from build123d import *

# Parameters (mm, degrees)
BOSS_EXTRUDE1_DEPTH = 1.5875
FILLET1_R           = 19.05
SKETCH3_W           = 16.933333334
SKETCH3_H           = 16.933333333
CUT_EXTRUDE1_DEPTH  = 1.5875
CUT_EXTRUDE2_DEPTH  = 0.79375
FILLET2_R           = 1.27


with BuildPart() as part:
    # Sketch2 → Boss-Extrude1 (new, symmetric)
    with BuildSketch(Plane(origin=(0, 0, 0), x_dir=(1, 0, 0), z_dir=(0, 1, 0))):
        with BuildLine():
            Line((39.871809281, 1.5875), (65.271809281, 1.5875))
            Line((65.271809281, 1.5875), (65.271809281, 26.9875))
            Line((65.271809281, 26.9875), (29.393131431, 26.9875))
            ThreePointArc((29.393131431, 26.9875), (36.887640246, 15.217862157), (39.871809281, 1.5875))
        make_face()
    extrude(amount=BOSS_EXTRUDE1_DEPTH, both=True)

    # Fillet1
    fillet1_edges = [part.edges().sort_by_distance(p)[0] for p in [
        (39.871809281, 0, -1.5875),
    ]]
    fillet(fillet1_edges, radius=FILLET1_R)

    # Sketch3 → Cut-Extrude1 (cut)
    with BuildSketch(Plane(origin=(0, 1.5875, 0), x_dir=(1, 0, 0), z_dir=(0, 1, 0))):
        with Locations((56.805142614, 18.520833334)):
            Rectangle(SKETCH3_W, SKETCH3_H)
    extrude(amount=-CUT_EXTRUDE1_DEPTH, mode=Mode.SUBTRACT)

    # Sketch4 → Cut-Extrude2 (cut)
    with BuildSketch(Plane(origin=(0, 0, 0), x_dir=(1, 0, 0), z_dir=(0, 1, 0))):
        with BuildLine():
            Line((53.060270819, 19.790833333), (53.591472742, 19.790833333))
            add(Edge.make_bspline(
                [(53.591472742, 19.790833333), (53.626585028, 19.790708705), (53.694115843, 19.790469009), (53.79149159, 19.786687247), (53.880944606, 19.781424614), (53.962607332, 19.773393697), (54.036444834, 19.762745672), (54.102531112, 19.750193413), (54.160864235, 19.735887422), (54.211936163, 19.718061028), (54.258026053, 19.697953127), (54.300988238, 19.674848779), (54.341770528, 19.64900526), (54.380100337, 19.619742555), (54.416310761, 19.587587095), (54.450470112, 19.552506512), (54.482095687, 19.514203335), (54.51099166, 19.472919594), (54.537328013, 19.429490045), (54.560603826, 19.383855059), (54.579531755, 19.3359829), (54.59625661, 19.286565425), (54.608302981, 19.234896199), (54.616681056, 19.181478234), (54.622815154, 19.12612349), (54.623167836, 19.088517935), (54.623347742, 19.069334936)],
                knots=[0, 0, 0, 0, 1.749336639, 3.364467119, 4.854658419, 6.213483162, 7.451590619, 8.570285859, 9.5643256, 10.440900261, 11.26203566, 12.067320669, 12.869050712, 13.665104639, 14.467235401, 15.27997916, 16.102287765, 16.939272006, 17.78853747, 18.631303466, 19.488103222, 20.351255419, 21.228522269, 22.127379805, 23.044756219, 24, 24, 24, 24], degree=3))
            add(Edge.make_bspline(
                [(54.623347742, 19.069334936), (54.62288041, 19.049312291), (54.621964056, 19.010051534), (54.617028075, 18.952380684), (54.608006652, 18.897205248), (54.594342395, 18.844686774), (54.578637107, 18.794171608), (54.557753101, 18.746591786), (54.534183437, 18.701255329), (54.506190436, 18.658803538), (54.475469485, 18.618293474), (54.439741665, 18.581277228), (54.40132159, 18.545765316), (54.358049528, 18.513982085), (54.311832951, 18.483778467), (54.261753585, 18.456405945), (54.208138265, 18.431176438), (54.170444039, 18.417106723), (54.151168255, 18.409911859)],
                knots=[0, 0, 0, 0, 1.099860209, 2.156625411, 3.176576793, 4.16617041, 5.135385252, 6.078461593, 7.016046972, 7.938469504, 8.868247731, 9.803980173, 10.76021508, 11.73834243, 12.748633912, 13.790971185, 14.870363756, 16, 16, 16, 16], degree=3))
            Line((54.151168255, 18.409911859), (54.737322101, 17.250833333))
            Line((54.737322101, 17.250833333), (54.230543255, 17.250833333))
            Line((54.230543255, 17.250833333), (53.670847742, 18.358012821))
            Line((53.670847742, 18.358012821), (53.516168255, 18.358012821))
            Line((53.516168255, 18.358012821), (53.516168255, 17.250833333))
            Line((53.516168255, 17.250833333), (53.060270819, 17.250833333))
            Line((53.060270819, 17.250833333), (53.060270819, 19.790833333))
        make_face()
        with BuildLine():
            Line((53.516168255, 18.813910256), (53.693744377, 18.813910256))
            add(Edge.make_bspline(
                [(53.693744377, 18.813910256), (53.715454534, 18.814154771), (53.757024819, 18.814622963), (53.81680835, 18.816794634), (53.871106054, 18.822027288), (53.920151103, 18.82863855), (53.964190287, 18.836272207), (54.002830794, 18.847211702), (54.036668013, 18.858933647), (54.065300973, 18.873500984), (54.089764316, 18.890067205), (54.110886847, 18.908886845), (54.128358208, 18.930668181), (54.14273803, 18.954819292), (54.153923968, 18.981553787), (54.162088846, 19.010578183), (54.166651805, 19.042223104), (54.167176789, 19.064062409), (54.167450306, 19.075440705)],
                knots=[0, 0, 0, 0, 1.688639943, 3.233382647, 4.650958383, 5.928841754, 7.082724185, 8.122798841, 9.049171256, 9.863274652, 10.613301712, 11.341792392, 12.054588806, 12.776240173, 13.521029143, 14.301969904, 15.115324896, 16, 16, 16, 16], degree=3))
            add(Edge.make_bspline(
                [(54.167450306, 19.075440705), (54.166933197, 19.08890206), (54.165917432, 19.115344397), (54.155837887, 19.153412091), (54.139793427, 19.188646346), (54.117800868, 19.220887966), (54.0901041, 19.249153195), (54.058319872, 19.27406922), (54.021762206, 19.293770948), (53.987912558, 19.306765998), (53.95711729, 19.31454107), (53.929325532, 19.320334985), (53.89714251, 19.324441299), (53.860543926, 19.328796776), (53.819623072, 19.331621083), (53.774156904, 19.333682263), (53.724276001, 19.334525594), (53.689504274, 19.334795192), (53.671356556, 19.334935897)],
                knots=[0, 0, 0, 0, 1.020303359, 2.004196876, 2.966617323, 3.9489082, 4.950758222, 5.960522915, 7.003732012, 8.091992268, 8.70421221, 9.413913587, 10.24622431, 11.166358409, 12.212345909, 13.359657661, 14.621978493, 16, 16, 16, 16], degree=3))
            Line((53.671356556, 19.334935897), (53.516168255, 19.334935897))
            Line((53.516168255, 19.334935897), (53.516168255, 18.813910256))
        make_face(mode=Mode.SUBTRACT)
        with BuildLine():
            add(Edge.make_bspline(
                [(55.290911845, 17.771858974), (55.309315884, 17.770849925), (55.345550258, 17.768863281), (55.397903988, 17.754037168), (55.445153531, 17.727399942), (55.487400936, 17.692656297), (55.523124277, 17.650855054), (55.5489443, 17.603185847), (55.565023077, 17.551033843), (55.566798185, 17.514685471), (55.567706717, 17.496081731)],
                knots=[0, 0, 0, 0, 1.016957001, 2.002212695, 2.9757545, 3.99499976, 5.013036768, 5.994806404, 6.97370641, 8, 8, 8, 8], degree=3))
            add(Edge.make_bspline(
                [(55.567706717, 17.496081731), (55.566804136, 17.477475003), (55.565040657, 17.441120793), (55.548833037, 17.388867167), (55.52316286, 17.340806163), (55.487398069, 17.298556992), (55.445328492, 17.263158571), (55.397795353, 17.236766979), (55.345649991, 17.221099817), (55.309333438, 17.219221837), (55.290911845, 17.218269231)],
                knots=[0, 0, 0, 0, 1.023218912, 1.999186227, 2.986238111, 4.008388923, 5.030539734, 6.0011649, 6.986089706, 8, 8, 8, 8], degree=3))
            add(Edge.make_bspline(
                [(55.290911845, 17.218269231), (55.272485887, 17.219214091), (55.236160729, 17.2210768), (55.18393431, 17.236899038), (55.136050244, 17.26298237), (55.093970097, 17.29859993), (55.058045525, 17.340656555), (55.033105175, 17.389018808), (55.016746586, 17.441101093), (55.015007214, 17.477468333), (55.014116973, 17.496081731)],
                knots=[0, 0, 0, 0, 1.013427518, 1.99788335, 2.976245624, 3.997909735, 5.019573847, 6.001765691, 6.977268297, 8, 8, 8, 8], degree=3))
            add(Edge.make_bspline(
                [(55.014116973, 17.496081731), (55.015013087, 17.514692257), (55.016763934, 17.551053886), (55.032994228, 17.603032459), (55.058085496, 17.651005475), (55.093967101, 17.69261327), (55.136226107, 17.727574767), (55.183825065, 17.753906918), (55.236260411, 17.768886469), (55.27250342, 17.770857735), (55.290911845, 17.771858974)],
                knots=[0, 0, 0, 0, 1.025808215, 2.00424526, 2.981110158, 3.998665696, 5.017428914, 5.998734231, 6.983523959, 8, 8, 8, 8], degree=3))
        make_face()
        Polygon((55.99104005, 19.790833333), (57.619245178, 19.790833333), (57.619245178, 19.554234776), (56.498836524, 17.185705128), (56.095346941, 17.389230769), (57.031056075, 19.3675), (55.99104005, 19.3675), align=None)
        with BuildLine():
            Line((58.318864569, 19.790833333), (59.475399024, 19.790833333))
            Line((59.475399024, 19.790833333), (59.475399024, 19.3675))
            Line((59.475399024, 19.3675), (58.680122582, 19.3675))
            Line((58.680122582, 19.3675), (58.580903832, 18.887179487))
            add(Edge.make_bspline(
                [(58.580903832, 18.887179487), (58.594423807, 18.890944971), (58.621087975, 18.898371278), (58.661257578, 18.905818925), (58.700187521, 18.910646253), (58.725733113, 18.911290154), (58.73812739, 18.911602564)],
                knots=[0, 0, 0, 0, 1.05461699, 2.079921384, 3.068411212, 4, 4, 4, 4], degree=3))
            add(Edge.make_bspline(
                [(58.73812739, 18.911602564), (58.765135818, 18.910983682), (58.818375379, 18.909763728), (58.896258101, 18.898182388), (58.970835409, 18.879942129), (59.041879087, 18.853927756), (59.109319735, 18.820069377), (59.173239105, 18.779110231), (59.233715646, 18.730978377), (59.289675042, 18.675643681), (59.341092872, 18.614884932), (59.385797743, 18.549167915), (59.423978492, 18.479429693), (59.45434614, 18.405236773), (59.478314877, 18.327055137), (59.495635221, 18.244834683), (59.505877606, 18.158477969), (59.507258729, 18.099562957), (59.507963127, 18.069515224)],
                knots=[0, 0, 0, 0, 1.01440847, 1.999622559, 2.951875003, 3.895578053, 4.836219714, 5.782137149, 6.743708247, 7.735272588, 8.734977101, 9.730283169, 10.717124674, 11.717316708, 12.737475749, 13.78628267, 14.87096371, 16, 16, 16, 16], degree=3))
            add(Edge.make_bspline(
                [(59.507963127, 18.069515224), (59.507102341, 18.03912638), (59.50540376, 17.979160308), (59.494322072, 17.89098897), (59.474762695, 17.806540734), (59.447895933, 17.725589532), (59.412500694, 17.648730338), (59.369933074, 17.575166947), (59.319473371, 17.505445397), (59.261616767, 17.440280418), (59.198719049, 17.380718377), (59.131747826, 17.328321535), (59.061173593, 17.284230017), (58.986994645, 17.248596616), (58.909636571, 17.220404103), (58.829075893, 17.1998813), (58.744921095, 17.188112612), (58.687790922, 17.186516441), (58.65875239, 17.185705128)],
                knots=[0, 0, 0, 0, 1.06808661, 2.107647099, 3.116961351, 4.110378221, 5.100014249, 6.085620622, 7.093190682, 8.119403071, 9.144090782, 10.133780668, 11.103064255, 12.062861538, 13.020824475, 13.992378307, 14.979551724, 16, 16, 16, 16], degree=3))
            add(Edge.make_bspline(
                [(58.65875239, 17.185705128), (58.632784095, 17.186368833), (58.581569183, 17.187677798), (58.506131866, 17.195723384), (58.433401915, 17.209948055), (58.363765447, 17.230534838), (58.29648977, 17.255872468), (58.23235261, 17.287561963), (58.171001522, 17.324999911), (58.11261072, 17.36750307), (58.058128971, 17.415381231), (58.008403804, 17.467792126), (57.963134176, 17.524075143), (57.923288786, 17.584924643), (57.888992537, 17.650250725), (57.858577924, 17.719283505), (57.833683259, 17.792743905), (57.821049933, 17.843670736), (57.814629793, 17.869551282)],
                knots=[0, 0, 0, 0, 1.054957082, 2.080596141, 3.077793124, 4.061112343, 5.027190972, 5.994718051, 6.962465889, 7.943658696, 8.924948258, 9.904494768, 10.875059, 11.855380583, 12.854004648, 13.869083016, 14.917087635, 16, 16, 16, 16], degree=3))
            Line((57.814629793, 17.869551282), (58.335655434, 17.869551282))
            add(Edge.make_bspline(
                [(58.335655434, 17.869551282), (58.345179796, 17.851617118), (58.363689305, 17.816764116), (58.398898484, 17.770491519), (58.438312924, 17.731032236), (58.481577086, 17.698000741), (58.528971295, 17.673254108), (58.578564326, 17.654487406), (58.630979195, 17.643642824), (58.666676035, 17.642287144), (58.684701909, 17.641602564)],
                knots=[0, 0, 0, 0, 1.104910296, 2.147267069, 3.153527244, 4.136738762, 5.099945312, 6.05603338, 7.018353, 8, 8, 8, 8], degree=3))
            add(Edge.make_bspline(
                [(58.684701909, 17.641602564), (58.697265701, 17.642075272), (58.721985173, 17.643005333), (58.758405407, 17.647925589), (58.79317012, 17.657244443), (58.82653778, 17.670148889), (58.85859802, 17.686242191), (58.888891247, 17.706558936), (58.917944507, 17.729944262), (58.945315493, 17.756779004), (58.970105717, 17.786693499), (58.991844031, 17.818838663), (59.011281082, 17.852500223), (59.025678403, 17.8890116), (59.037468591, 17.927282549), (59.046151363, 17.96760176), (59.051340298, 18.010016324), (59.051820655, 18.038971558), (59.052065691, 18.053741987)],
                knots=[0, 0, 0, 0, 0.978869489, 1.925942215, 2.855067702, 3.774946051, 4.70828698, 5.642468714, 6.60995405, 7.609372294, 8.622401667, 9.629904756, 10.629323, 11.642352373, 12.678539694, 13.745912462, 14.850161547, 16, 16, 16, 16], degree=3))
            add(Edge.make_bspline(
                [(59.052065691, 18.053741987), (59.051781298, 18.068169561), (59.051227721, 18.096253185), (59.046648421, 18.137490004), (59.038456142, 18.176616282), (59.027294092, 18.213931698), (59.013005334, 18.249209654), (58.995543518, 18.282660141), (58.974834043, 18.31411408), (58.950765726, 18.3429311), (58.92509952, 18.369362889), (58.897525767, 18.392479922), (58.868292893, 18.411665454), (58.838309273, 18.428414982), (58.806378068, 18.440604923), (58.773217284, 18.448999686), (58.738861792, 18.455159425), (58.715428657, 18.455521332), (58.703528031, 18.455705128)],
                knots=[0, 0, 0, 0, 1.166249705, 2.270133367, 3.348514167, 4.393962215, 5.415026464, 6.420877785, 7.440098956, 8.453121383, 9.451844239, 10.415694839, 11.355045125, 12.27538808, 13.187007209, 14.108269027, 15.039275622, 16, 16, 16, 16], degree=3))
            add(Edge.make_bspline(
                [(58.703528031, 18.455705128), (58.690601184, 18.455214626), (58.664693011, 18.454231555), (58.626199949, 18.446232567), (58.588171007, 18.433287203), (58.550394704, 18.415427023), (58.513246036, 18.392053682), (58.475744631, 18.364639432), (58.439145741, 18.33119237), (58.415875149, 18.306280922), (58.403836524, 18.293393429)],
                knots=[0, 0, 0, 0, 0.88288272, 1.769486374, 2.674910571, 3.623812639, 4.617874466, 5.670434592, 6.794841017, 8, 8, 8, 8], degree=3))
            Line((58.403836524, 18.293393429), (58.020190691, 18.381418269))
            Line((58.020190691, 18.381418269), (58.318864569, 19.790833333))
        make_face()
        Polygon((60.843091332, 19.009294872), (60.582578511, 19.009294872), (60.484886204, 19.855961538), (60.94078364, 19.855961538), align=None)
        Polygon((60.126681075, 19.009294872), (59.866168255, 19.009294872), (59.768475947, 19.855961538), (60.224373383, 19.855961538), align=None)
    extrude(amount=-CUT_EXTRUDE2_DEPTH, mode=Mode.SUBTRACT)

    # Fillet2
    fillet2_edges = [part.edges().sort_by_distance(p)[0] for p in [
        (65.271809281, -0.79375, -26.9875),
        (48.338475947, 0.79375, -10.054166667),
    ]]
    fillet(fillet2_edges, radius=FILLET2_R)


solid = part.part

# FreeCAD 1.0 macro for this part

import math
import FreeCAD as App
import Part
import Sketcher
Q = App.Units.Quantity


def edges_at(feature, points):
    """Names of the edges that pass closest to the given points."""
    edges = feature.Shape.Edges
    near = lambda p: min(range(len(edges)), key=lambda i: edges[i].distToShape(Part.Vertex(*p))[0])
    return sorted({f"Edge{near(p) + 1}" for p in points})


def add_polygon(sketch, points):
    """Adds a closed chain of lines whose ends are joined by coincident constraints."""
    first, n = sketch.GeometryCount, len(points)
    for a, b in zip(points, points[1:] + points[:1]):
        sketch.addGeometry(Part.LineSegment(App.Vector(*a, 0), App.Vector(*b, 0)), False)
    for i in range(n):
        sketch.addConstraint(Sketcher.Constraint("Coincident", first + i, 2, first + (i + 1) % n, 1))

doc = App.newDocument("Part")
body = doc.addObject("PartDesign::Body", "Body")

# Sketch on XZ plane
sketch1 = doc.addObject("Sketcher::SketchObject", "Sketch")
body.addObject(sketch1)
sketch1.AttachmentSupport = (doc.XZ_Plane, [""])
sketch1.MapMode = "FlatFace"
sketch1.addGeometry(Part.LineSegment(App.Vector(40, -2, 0), App.Vector(65, -2, 0)), False)
sketch1.addGeometry(Part.LineSegment(App.Vector(65, -2, 0), App.Vector(65, -27, 0)), False)
sketch1.addGeometry(Part.LineSegment(App.Vector(65, -27, 0), App.Vector(29, -27, 0)), False)
sketch1.addGeometry(Part.ArcOfCircle(Part.Circle(App.Vector(0, 0, 0), App.Vector(0, 0, 1), 40), math.radians(-43), math.radians(-2)), False)
sketch1.addConstraint(Sketcher.Constraint("Coincident", 0, 2, 1, 1))
sketch1.addConstraint(Sketcher.Constraint("Coincident", 1, 2, 2, 1))
sketch1.addConstraint(Sketcher.Constraint("Coincident", 2, 2, 3, 1))
sketch1.addConstraint(Sketcher.Constraint("Coincident", 3, 2, 0, 1))
sketch1.addConstraint(Sketcher.Constraint("Horizontal", 0))
sketch1.addConstraint(Sketcher.Constraint("Vertical", 1))
sketch1.addConstraint(Sketcher.Constraint("Horizontal", 2))
sketch1.addConstraint(Sketcher.Constraint("Coincident", 3, 3, -1, 1))
sketch1.addConstraint(Sketcher.Constraint("Equal", 0, 1))
sketch1.addConstraint(Sketcher.Constraint("DistanceX", 0, 1, 0, 2, Q("1 in")))
sketch1.addConstraint(Sketcher.Constraint("Radius", 3, Q("1.571 in")))
sketch1.addConstraint(Sketcher.Constraint("DistanceY", 0, 2, -1, 1, Q("0.0625 in")))
pad1 = doc.addObject("PartDesign::Pad", "Pad")
body.addObject(pad1)
pad1.Profile = sketch1
pad1.Length = Q("0.125 in")
pad1.Midplane = True
doc.recompute()

fillet = doc.addObject("PartDesign::Fillet", "Fillet")
body.addObject(fillet)
fillet.Base = (pad1, edges_at(pad1, [(39.872, 0, -1.587)]))
fillet.Radius = Q("0.75 in")

# Sketch on XZ plane
sketch2 = doc.addObject("Sketcher::SketchObject", "Sketch001")
body.addObject(sketch2)
sketch2.AttachmentSupport = (doc.XZ_Plane, [""])
sketch2.MapMode = "FlatFace"
sketch2.AttachmentOffset = App.Placement(App.Vector(0, 0, -0.0625 * 25.4), App.Rotation())
add_polygon(sketch2, [(48, -27), (48, -10), (65, -10), (65, -27)])  # lines 0-3
sketch2.addConstraint(Sketcher.Constraint("Vertical", 0))
sketch2.addConstraint(Sketcher.Constraint("Horizontal", 1))
sketch2.addConstraint(Sketcher.Constraint("Vertical", 2))
sketch2.addConstraint(Sketcher.Constraint("Horizontal", 3))
sketch2.addConstraint(Sketcher.Constraint("Equal", 3, 0))
sketch2.addConstraint(Sketcher.Constraint("DistanceY", 2, 2, -1, 1, Q("1.0625 in")))
sketch2.addConstraint(Sketcher.Constraint("DistanceX", 1, 1, 1, 2, 16.933333))
sketch2.addConstraint(Sketcher.Constraint("DistanceX", -1, 1, 1, 2, 65.271809))
pocket1 = doc.addObject("PartDesign::Pocket", "Pocket")
body.addObject(pocket1)
pocket1.Profile = sketch2
pocket1.Length = Q("0.0625 in")
pocket1.Reversed = True

# Sketch on XZ plane
sketch3 = doc.addObject("Sketcher::SketchObject", "Sketch002")
body.addObject(sketch3)
sketch3.AttachmentSupport = (doc.XZ_Plane, [""])
sketch3.MapMode = "FlatFace"
sketch3.addGeometry(Part.LineSegment(App.Vector(53.591473, -19.790833, 0), App.Vector(53.060271, -19.790833, 0)), False)  # 0
sketch3.addGeometry(Part.LineSegment(App.Vector(53.060271, -19.790833, 0), App.Vector(53.060271, -17.250833, 0)), False)  # 1
sketch3.addGeometry(Part.LineSegment(App.Vector(53.060271, -17.250833, 0), App.Vector(53.516168, -17.250833, 0)), False)  # 2
sketch3.addGeometry(Part.LineSegment(App.Vector(53.516168, -17.250833, 0), App.Vector(53.516168, -18.358013, 0)), False)  # 3
sketch3.addGeometry(Part.LineSegment(App.Vector(53.516168, -18.358013, 0), App.Vector(53.670848, -18.358013, 0)), False)  # 4
sketch3.addGeometry(Part.LineSegment(App.Vector(53.670848, -18.358013, 0), App.Vector(54.230543, -17.250833, 0)), False)  # 5
sketch3.addGeometry(Part.LineSegment(App.Vector(54.230543, -17.250833, 0), App.Vector(54.737322, -17.250833, 0)), False)  # 6
sketch3.addGeometry(Part.LineSegment(App.Vector(54.737322, -17.250833, 0), App.Vector(54.151168, -18.409912, 0)), False)  # 7
sketch3.addGeometry(Part.BSplineCurve([App.Vector(54.623348, -19.069335, 0), App.Vector(54.62288, -19.049312, 0), App.Vector(54.621964, -19.010052, 0), App.Vector(54.617028, -18.952381, 0), App.Vector(54.608007, -18.897205, 0), App.Vector(54.594342, -18.844687, 0), App.Vector(54.578637, -18.794172, 0), App.Vector(54.557753, -18.746592, 0), App.Vector(54.534183, -18.701255, 0), App.Vector(54.50619, -18.658804, 0), App.Vector(54.475469, -18.618293, 0), App.Vector(54.439742, -18.581277, 0), App.Vector(54.401322, -18.545765, 0), App.Vector(54.35805, -18.513982, 0), App.Vector(54.311833, -18.483778, 0), App.Vector(54.261754, -18.456406, 0), App.Vector(54.208138, -18.431176, 0), App.Vector(54.170444, -18.417107, 0), App.Vector(54.151168, -18.409912, 0)], [4, 1, 1, 1, 1, 1, 1, 1, 1, 1, 1, 1, 1, 1, 1, 1, 4], [0, 1.099860209, 2.156625411, 3.176576793, 4.16617041, 5.135385252, 6.078461593, 7.016046972, 7.938469504, 8.868247731, 9.803980173, 10.76021508, 11.73834243, 12.748633912, 13.790971185, 14.870363756, 16], False, 3, [1, 1, 1, 1, 1, 1, 1, 1, 1, 1, 1, 1, 1, 1, 1, 1, 1, 1, 1], False), False)  # 8
sketch3.addGeometry(Part.BSplineCurve([App.Vector(53.591473, -19.790833, 0), App.Vector(53.626585, -19.790709, 0), App.Vector(53.694116, -19.790469, 0), App.Vector(53.791492, -19.786687, 0), App.Vector(53.880945, -19.781425, 0), App.Vector(53.962607, -19.773394, 0), App.Vector(54.036445, -19.762746, 0), App.Vector(54.102531, -19.750193, 0), App.Vector(54.160864, -19.735887, 0), App.Vector(54.211936, -19.718061, 0), App.Vector(54.258026, -19.697953, 0), App.Vector(54.300988, -19.674849, 0), App.Vector(54.341771, -19.649005, 0), App.Vector(54.3801, -19.619743, 0), App.Vector(54.416311, -19.587587, 0), App.Vector(54.45047, -19.552507, 0), App.Vector(54.482096, -19.514203, 0), App.Vector(54.510992, -19.47292, 0), App.Vector(54.537328, -19.42949, 0), App.Vector(54.560604, -19.383855, 0), App.Vector(54.579532, -19.335983, 0), App.Vector(54.596257, -19.286565, 0), App.Vector(54.608303, -19.234896, 0), App.Vector(54.616681, -19.181478, 0), App.Vector(54.622815, -19.126123, 0), App.Vector(54.623168, -19.088518, 0), App.Vector(54.623348, -19.069335, 0)], [4, 1, 1, 1, 1, 1, 1, 1, 1, 1, 1, 1, 1, 1, 1, 1, 1, 1, 1, 1, 1, 1, 1, 1, 4], [0, 1.749336639, 3.364467119, 4.854658419, 6.213483162, 7.451590619, 8.570285859, 9.5643256, 10.440900261, 11.26203566, 12.067320669, 12.869050712, 13.665104639, 14.467235401, 15.27997916, 16.102287765, 16.939272006, 17.78853747, 18.631303466, 19.488103222, 20.351255419, 21.228522269, 22.127379805, 23.044756219, 24], False, 3, [1, 1, 1, 1, 1, 1, 1, 1, 1, 1, 1, 1, 1, 1, 1, 1, 1, 1, 1, 1, 1, 1, 1, 1, 1, 1, 1], False), False)  # 9
sketch3.addGeometry(Part.LineSegment(App.Vector(53.516168, -18.81391, 0), App.Vector(53.516168, -19.334936, 0)), False)  # 10
sketch3.addGeometry(Part.LineSegment(App.Vector(53.516168, -19.334936, 0), App.Vector(53.671357, -19.334936, 0)), False)  # 11
sketch3.addGeometry(Part.BSplineCurve([App.Vector(54.16745, -19.075441, 0), App.Vector(54.166933, -19.088902, 0), App.Vector(54.165917, -19.115344, 0), App.Vector(54.155838, -19.153412, 0), App.Vector(54.139793, -19.188646, 0), App.Vector(54.117801, -19.220888, 0), App.Vector(54.090104, -19.249153, 0), App.Vector(54.05832, -19.274069, 0), App.Vector(54.021762, -19.293771, 0), App.Vector(53.987913, -19.306766, 0), App.Vector(53.957117, -19.314541, 0), App.Vector(53.929326, -19.320335, 0), App.Vector(53.897143, -19.324441, 0), App.Vector(53.860544, -19.328797, 0), App.Vector(53.819623, -19.331621, 0), App.Vector(53.774157, -19.333682, 0), App.Vector(53.724276, -19.334526, 0), App.Vector(53.689504, -19.334795, 0), App.Vector(53.671357, -19.334936, 0)], [4, 1, 1, 1, 1, 1, 1, 1, 1, 1, 1, 1, 1, 1, 1, 1, 4], [0, 1.020303359, 2.004196876, 2.966617323, 3.9489082, 4.950758222, 5.960522915, 7.003732012, 8.091992268, 8.70421221, 9.413913587, 10.24622431, 11.166358409, 12.212345909, 13.359657661, 14.621978493, 16], False, 3, [1, 1, 1, 1, 1, 1, 1, 1, 1, 1, 1, 1, 1, 1, 1, 1, 1, 1, 1], False), False)  # 12
sketch3.addGeometry(Part.BSplineCurve([App.Vector(53.693744, -18.81391, 0), App.Vector(53.715455, -18.814155, 0), App.Vector(53.757025, -18.814623, 0), App.Vector(53.816808, -18.816795, 0), App.Vector(53.871106, -18.822027, 0), App.Vector(53.920151, -18.828639, 0), App.Vector(53.96419, -18.836272, 0), App.Vector(54.002831, -18.847212, 0), App.Vector(54.036668, -18.858934, 0), App.Vector(54.065301, -18.873501, 0), App.Vector(54.089764, -18.890067, 0), App.Vector(54.110887, -18.908887, 0), App.Vector(54.128358, -18.930668, 0), App.Vector(54.142738, -18.954819, 0), App.Vector(54.153924, -18.981554, 0), App.Vector(54.162089, -19.010578, 0), App.Vector(54.166652, -19.042223, 0), App.Vector(54.167177, -19.064062, 0), App.Vector(54.16745, -19.075441, 0)], [4, 1, 1, 1, 1, 1, 1, 1, 1, 1, 1, 1, 1, 1, 1, 1, 4], [0, 1.688639943, 3.233382647, 4.650958383, 5.928841754, 7.082724185, 8.122798841, 9.049171256, 9.863274652, 10.613301712, 11.341792392, 12.054588806, 12.776240173, 13.521029143, 14.301969904, 15.115324896, 16], False, 3, [1, 1, 1, 1, 1, 1, 1, 1, 1, 1, 1, 1, 1, 1, 1, 1, 1, 1, 1], False), False)  # 13
sketch3.addGeometry(Part.LineSegment(App.Vector(53.693744, -18.81391, 0), App.Vector(53.516168, -18.81391, 0)), False)  # 14
sketch3.addGeometry(Part.BSplineCurve([App.Vector(55.290912, -17.771859, 0), App.Vector(55.309316, -17.77085, 0), App.Vector(55.34555, -17.768863, 0), App.Vector(55.397904, -17.754037, 0), App.Vector(55.445154, -17.7274, 0), App.Vector(55.487401, -17.692656, 0), App.Vector(55.523124, -17.650855, 0), App.Vector(55.548944, -17.603186, 0), App.Vector(55.565023, -17.551034, 0), App.Vector(55.566798, -17.514685, 0), App.Vector(55.567707, -17.496082, 0)], [4, 1, 1, 1, 1, 1, 1, 1, 4], [0, 1.016957001, 2.002212695, 2.9757545, 3.99499976, 5.013036768, 5.994806404, 6.97370641, 8], False, 3, [1, 1, 1, 1, 1, 1, 1, 1, 1, 1, 1], False), False)  # 15
sketch3.addGeometry(Part.BSplineCurve([App.Vector(55.014117, -17.496082, 0), App.Vector(55.015013, -17.514692, 0), App.Vector(55.016764, -17.551054, 0), App.Vector(55.032994, -17.603032, 0), App.Vector(55.058085, -17.651005, 0), App.Vector(55.093967, -17.692613, 0), App.Vector(55.136226, -17.727575, 0), App.Vector(55.183825, -17.753907, 0), App.Vector(55.23626, -17.768886, 0), App.Vector(55.272503, -17.770858, 0), App.Vector(55.290912, -17.771859, 0)], [4, 1, 1, 1, 1, 1, 1, 1, 4], [0, 1.025808215, 2.00424526, 2.981110158, 3.998665696, 5.017428914, 5.998734231, 6.983523959, 8], False, 3, [1, 1, 1, 1, 1, 1, 1, 1, 1, 1, 1], False), False)  # 16
sketch3.addGeometry(Part.BSplineCurve([App.Vector(55.290912, -17.218269, 0), App.Vector(55.272486, -17.219214, 0), App.Vector(55.236161, -17.221077, 0), App.Vector(55.183934, -17.236899, 0), App.Vector(55.13605, -17.262982, 0), App.Vector(55.09397, -17.2986, 0), App.Vector(55.058046, -17.340657, 0), App.Vector(55.033105, -17.389019, 0), App.Vector(55.016747, -17.441101, 0), App.Vector(55.015007, -17.477468, 0), App.Vector(55.014117, -17.496082, 0)], [4, 1, 1, 1, 1, 1, 1, 1, 4], [0, 1.013427518, 1.99788335, 2.976245624, 3.997909735, 5.019573847, 6.001765691, 6.977268297, 8], False, 3, [1, 1, 1, 1, 1, 1, 1, 1, 1, 1, 1], False), False)  # 17
sketch3.addGeometry(Part.BSplineCurve([App.Vector(55.567707, -17.496082, 0), App.Vector(55.566804, -17.477475, 0), App.Vector(55.565041, -17.441121, 0), App.Vector(55.548833, -17.388867, 0), App.Vector(55.523163, -17.340806, 0), App.Vector(55.487398, -17.298557, 0), App.Vector(55.445328, -17.263159, 0), App.Vector(55.397795, -17.236767, 0), App.Vector(55.34565, -17.2211, 0), App.Vector(55.309333, -17.219222, 0), App.Vector(55.290912, -17.218269, 0)], [4, 1, 1, 1, 1, 1, 1, 1, 4], [0, 1.023218912, 1.999186227, 2.986238111, 4.008388923, 5.030539734, 6.0011649, 6.986089706, 8], False, 3, [1, 1, 1, 1, 1, 1, 1, 1, 1, 1, 1], False), False)  # 18
add_polygon(sketch3, [(57.619245, -19.790833), (55.99104, -19.790833), (55.99104, -19.3675), (57.031056, -19.3675), (56.095347, -17.389231), (56.498837, -17.185705), (57.619245, -19.554235)])  # lines 19-25
sketch3.addGeometry(Part.LineSegment(App.Vector(59.475399, -19.790833, 0), App.Vector(58.318865, -19.790833, 0)), False)  # 26
sketch3.addGeometry(Part.LineSegment(App.Vector(58.318865, -19.790833, 0), App.Vector(58.020191, -18.381418, 0)), False)  # 27
sketch3.addGeometry(Part.LineSegment(App.Vector(58.020191, -18.381418, 0), App.Vector(58.403837, -18.293393, 0)), False)  # 28
sketch3.addGeometry(Part.BSplineCurve([App.Vector(58.703528, -18.455705, 0), App.Vector(58.690601, -18.455215, 0), App.Vector(58.664693, -18.454232, 0), App.Vector(58.6262, -18.446233, 0), App.Vector(58.588171, -18.433287, 0), App.Vector(58.550395, -18.415427, 0), App.Vector(58.513246, -18.392054, 0), App.Vector(58.475745, -18.364639, 0), App.Vector(58.439146, -18.331192, 0), App.Vector(58.415875, -18.306281, 0), App.Vector(58.403837, -18.293393, 0)], [4, 1, 1, 1, 1, 1, 1, 1, 4], [0, 0.88288272, 1.769486374, 2.674910571, 3.623812639, 4.617874466, 5.670434592, 6.794841017, 8], False, 3, [1, 1, 1, 1, 1, 1, 1, 1, 1, 1, 1], False), False)  # 29
sketch3.addGeometry(Part.BSplineCurve([App.Vector(59.052066, -18.053742, 0), App.Vector(59.051781, -18.06817, 0), App.Vector(59.051228, -18.096253, 0), App.Vector(59.046648, -18.13749, 0), App.Vector(59.038456, -18.176616, 0), App.Vector(59.027294, -18.213932, 0), App.Vector(59.013005, -18.24921, 0), App.Vector(58.995544, -18.28266, 0), App.Vector(58.974834, -18.314114, 0), App.Vector(58.950766, -18.342931, 0), App.Vector(58.9251, -18.369363, 0), App.Vector(58.897526, -18.39248, 0), App.Vector(58.868293, -18.411665, 0), App.Vector(58.838309, -18.428415, 0), App.Vector(58.806378, -18.440605, 0), App.Vector(58.773217, -18.449, 0), App.Vector(58.738862, -18.455159, 0), App.Vector(58.715429, -18.455521, 0), App.Vector(58.703528, -18.455705, 0)], [4, 1, 1, 1, 1, 1, 1, 1, 1, 1, 1, 1, 1, 1, 1, 1, 4], [0, 1.166249705, 2.270133367, 3.348514167, 4.393962215, 5.415026464, 6.420877785, 7.440098956, 8.453121383, 9.451844239, 10.415694839, 11.355045125, 12.27538808, 13.187007209, 14.108269027, 15.039275622, 16], False, 3, [1, 1, 1, 1, 1, 1, 1, 1, 1, 1, 1, 1, 1, 1, 1, 1, 1, 1, 1], False), False)  # 30
sketch3.addGeometry(Part.BSplineCurve([App.Vector(58.684702, -17.641603, 0), App.Vector(58.697266, -17.642075, 0), App.Vector(58.721985, -17.643005, 0), App.Vector(58.758405, -17.647926, 0), App.Vector(58.79317, -17.657244, 0), App.Vector(58.826538, -17.670149, 0), App.Vector(58.858598, -17.686242, 0), App.Vector(58.888891, -17.706559, 0), App.Vector(58.917945, -17.729944, 0), App.Vector(58.945315, -17.756779, 0), App.Vector(58.970106, -17.786693, 0), App.Vector(58.991844, -17.818839, 0), App.Vector(59.011281, -17.8525, 0), App.Vector(59.025678, -17.889012, 0), App.Vector(59.037469, -17.927283, 0), App.Vector(59.046151, -17.967602, 0), App.Vector(59.05134, -18.010016, 0), App.Vector(59.051821, -18.038972, 0), App.Vector(59.052066, -18.053742, 0)], [4, 1, 1, 1, 1, 1, 1, 1, 1, 1, 1, 1, 1, 1, 1, 1, 4], [0, 0.978869489, 1.925942215, 2.855067702, 3.774946051, 4.70828698, 5.642468714, 6.60995405, 7.609372294, 8.622401667, 9.629904756, 10.629323, 11.642352373, 12.678539694, 13.745912462, 14.850161547, 16], False, 3, [1, 1, 1, 1, 1, 1, 1, 1, 1, 1, 1, 1, 1, 1, 1, 1, 1, 1, 1], False), False)  # 31
sketch3.addGeometry(Part.BSplineCurve([App.Vector(58.335655, -17.869551, 0), App.Vector(58.34518, -17.851617, 0), App.Vector(58.363689, -17.816764, 0), App.Vector(58.398898, -17.770492, 0), App.Vector(58.438313, -17.731032, 0), App.Vector(58.481577, -17.698001, 0), App.Vector(58.528971, -17.673254, 0), App.Vector(58.578564, -17.654487, 0), App.Vector(58.630979, -17.643643, 0), App.Vector(58.666676, -17.642287, 0), App.Vector(58.684702, -17.641603, 0)], [4, 1, 1, 1, 1, 1, 1, 1, 4], [0, 1.104910296, 2.147267069, 3.153527244, 4.136738762, 5.099945312, 6.05603338, 7.018353, 8], False, 3, [1, 1, 1, 1, 1, 1, 1, 1, 1, 1, 1], False), False)  # 32
sketch3.addGeometry(Part.LineSegment(App.Vector(58.335655, -17.869551, 0), App.Vector(57.81463, -17.869551, 0)), False)  # 33
sketch3.addGeometry(Part.BSplineCurve([App.Vector(58.658752, -17.185705, 0), App.Vector(58.632784, -17.186369, 0), App.Vector(58.581569, -17.187678, 0), App.Vector(58.506132, -17.195723, 0), App.Vector(58.433402, -17.209948, 0), App.Vector(58.363765, -17.230535, 0), App.Vector(58.29649, -17.255872, 0), App.Vector(58.232353, -17.287562, 0), App.Vector(58.171002, -17.325, 0), App.Vector(58.112611, -17.367503, 0), App.Vector(58.058129, -17.415381, 0), App.Vector(58.008404, -17.467792, 0), App.Vector(57.963134, -17.524075, 0), App.Vector(57.923289, -17.584925, 0), App.Vector(57.888993, -17.650251, 0), App.Vector(57.858578, -17.719284, 0), App.Vector(57.833683, -17.792744, 0), App.Vector(57.82105, -17.843671, 0), App.Vector(57.81463, -17.869551, 0)], [4, 1, 1, 1, 1, 1, 1, 1, 1, 1, 1, 1, 1, 1, 1, 1, 4], [0, 1.054957082, 2.080596141, 3.077793124, 4.061112343, 5.027190972, 5.994718051, 6.962465889, 7.943658696, 8.924948258, 9.904494768, 10.875059, 11.855380583, 12.854004648, 13.869083016, 14.917087635, 16], False, 3, [1, 1, 1, 1, 1, 1, 1, 1, 1, 1, 1, 1, 1, 1, 1, 1, 1, 1, 1], False), False)  # 34
sketch3.addGeometry(Part.BSplineCurve([App.Vector(59.507963, -18.069515, 0), App.Vector(59.507102, -18.039126, 0), App.Vector(59.505404, -17.97916, 0), App.Vector(59.494322, -17.890989, 0), App.Vector(59.474763, -17.806541, 0), App.Vector(59.447896, -17.72559, 0), App.Vector(59.412501, -17.64873, 0), App.Vector(59.369933, -17.575167, 0), App.Vector(59.319473, -17.505445, 0), App.Vector(59.261617, -17.44028, 0), App.Vector(59.198719, -17.380718, 0), App.Vector(59.131748, -17.328322, 0), App.Vector(59.061174, -17.28423, 0), App.Vector(58.986995, -17.248597, 0), App.Vector(58.909637, -17.220404, 0), App.Vector(58.829076, -17.199881, 0), App.Vector(58.744921, -17.188113, 0), App.Vector(58.687791, -17.186516, 0), App.Vector(58.658752, -17.185705, 0)], [4, 1, 1, 1, 1, 1, 1, 1, 1, 1, 1, 1, 1, 1, 1, 1, 4], [0, 1.06808661, 2.107647099, 3.116961351, 4.110378221, 5.100014249, 6.085620622, 7.093190682, 8.119403071, 9.144090782, 10.133780668, 11.103064255, 12.062861538, 13.020824475, 13.992378307, 14.979551724, 16], False, 3, [1, 1, 1, 1, 1, 1, 1, 1, 1, 1, 1, 1, 1, 1, 1, 1, 1, 1, 1], False), False)  # 35
sketch3.addGeometry(Part.BSplineCurve([App.Vector(58.738127, -18.911603, 0), App.Vector(58.765136, -18.910984, 0), App.Vector(58.818375, -18.909764, 0), App.Vector(58.896258, -18.898182, 0), App.Vector(58.970835, -18.879942, 0), App.Vector(59.041879, -18.853928, 0), App.Vector(59.10932, -18.820069, 0), App.Vector(59.173239, -18.77911, 0), App.Vector(59.233716, -18.730978, 0), App.Vector(59.289675, -18.675644, 0), App.Vector(59.341093, -18.614885, 0), App.Vector(59.385798, -18.549168, 0), App.Vector(59.423978, -18.47943, 0), App.Vector(59.454346, -18.405237, 0), App.Vector(59.478315, -18.327055, 0), App.Vector(59.495635, -18.244835, 0), App.Vector(59.505878, -18.158478, 0), App.Vector(59.507259, -18.099563, 0), App.Vector(59.507963, -18.069515, 0)], [4, 1, 1, 1, 1, 1, 1, 1, 1, 1, 1, 1, 1, 1, 1, 1, 4], [0, 1.01440847, 1.999622559, 2.951875003, 3.895578053, 4.836219714, 5.782137149, 6.743708247, 7.735272588, 8.734977101, 9.730283169, 10.717124674, 11.717316708, 12.737475749, 13.78628267, 14.87096371, 16], False, 3, [1, 1, 1, 1, 1, 1, 1, 1, 1, 1, 1, 1, 1, 1, 1, 1, 1, 1, 1], False), False)  # 36
sketch3.addGeometry(Part.BSplineCurve([App.Vector(58.580904, -18.887179, 0), App.Vector(58.594424, -18.890945, 0), App.Vector(58.621088, -18.898371, 0), App.Vector(58.661258, -18.905819, 0), App.Vector(58.700188, -18.910646, 0), App.Vector(58.725733, -18.91129, 0), App.Vector(58.738127, -18.911603, 0)], [4, 1, 1, 1, 4], [0, 1.05461699, 2.079921384, 3.068411212, 4], False, 3, [1, 1, 1, 1, 1, 1, 1], False), False)  # 37
sketch3.addGeometry(Part.LineSegment(App.Vector(58.580904, -18.887179, 0), App.Vector(58.680123, -19.3675, 0)), False)  # 38
sketch3.addGeometry(Part.LineSegment(App.Vector(58.680123, -19.3675, 0), App.Vector(59.475399, -19.3675, 0)), False)  # 39
sketch3.addGeometry(Part.LineSegment(App.Vector(59.475399, -19.3675, 0), App.Vector(59.475399, -19.790833, 0)), False)  # 40
add_polygon(sketch3, [(60.582579, -19.009295), (60.843091, -19.009295), (60.940784, -19.855962), (60.484886, -19.855962)])  # lines 41-44
add_polygon(sketch3, [(59.866168, -19.009295), (60.126681, -19.009295), (60.224373, -19.855962), (59.768476, -19.855962)])  # lines 45-48
sketch3.addConstraint(Sketcher.Constraint("Block", 8))
sketch3.addConstraint(Sketcher.Constraint("Block", 9))
sketch3.addConstraint(Sketcher.Constraint("Block", 12))
sketch3.addConstraint(Sketcher.Constraint("Block", 13))
sketch3.addConstraint(Sketcher.Constraint("Block", 15))
sketch3.addConstraint(Sketcher.Constraint("Block", 16))
sketch3.addConstraint(Sketcher.Constraint("Block", 17))
sketch3.addConstraint(Sketcher.Constraint("Block", 18))
sketch3.addConstraint(Sketcher.Constraint("Block", 29))
sketch3.addConstraint(Sketcher.Constraint("Block", 30))
sketch3.addConstraint(Sketcher.Constraint("Block", 31))
sketch3.addConstraint(Sketcher.Constraint("Block", 32))
sketch3.addConstraint(Sketcher.Constraint("Block", 34))
sketch3.addConstraint(Sketcher.Constraint("Block", 35))
sketch3.addConstraint(Sketcher.Constraint("Block", 36))
sketch3.addConstraint(Sketcher.Constraint("Block", 37))
sketch3.addConstraint(Sketcher.Constraint("Coincident", 0, 2, 1, 1))
sketch3.addConstraint(Sketcher.Constraint("Coincident", 1, 2, 2, 1))
sketch3.addConstraint(Sketcher.Constraint("Coincident", 2, 2, 3, 1))
sketch3.addConstraint(Sketcher.Constraint("Coincident", 3, 2, 4, 1))
sketch3.addConstraint(Sketcher.Constraint("Coincident", 4, 2, 5, 1))
sketch3.addConstraint(Sketcher.Constraint("Coincident", 5, 2, 6, 1))
sketch3.addConstraint(Sketcher.Constraint("Coincident", 6, 2, 7, 1))
sketch3.addConstraint(Sketcher.Constraint("Coincident", 7, 2, 8, 2))
sketch3.addConstraint(Sketcher.Constraint("Coincident", 9, 1, 0, 1))
sketch3.addConstraint(Sketcher.Constraint("Coincident", 10, 2, 11, 1))
sketch3.addConstraint(Sketcher.Constraint("Coincident", 11, 2, 12, 2))
sketch3.addConstraint(Sketcher.Constraint("Coincident", 13, 1, 14, 1))
sketch3.addConstraint(Sketcher.Constraint("Coincident", 14, 2, 10, 1))
sketch3.addConstraint(Sketcher.Constraint("Coincident", 26, 2, 27, 1))
sketch3.addConstraint(Sketcher.Constraint("Coincident", 27, 2, 28, 1))
sketch3.addConstraint(Sketcher.Constraint("Coincident", 28, 2, 29, 2))
sketch3.addConstraint(Sketcher.Constraint("Coincident", 32, 1, 33, 1))
sketch3.addConstraint(Sketcher.Constraint("Coincident", 33, 2, 34, 2))
sketch3.addConstraint(Sketcher.Constraint("Coincident", 37, 1, 38, 1))
sketch3.addConstraint(Sketcher.Constraint("Coincident", 38, 2, 39, 1))
sketch3.addConstraint(Sketcher.Constraint("Coincident", 39, 2, 40, 1))
sketch3.addConstraint(Sketcher.Constraint("Coincident", 40, 2, 26, 1))
sketch3.addConstraint(Sketcher.Constraint("Horizontal", 0))
sketch3.addConstraint(Sketcher.Constraint("Vertical", 1))
sketch3.addConstraint(Sketcher.Constraint("Horizontal", 2))
sketch3.addConstraint(Sketcher.Constraint("Vertical", 3))
sketch3.addConstraint(Sketcher.Constraint("Horizontal", 4))
sketch3.addConstraint(Sketcher.Constraint("Horizontal", 6))
sketch3.addConstraint(Sketcher.Constraint("Vertical", 10))
sketch3.addConstraint(Sketcher.Constraint("Horizontal", 11))
sketch3.addConstraint(Sketcher.Constraint("Horizontal", 14))
sketch3.addConstraint(Sketcher.Constraint("Horizontal", 19))
sketch3.addConstraint(Sketcher.Constraint("Vertical", 20))
sketch3.addConstraint(Sketcher.Constraint("Horizontal", 21))
sketch3.addConstraint(Sketcher.Constraint("Vertical", 25))
sketch3.addConstraint(Sketcher.Constraint("Horizontal", 26))
sketch3.addConstraint(Sketcher.Constraint("Horizontal", 39))
sketch3.addConstraint(Sketcher.Constraint("Vertical", 40))
sketch3.addConstraint(Sketcher.Constraint("Horizontal", 41))
sketch3.addConstraint(Sketcher.Constraint("Horizontal", 43))
sketch3.addConstraint(Sketcher.Constraint("Horizontal", 45))
sketch3.addConstraint(Sketcher.Constraint("Horizontal", 47))
sketch3.addConstraint(Sketcher.Constraint("DistanceY", 1, 1, 1, 2, Q("0.1 in")))
sketch3.addConstraint(Sketcher.Constraint("DistanceY", 0, 2, 5, 2, Q("0.1 in")))
sketch3.addConstraint(Sketcher.Constraint("DistanceX", 3, 2, 7, 2, Q("0.025 in")))
sketch3.addConstraint(Sketcher.Constraint("DistanceX", 10, 2, 7, 2, Q("0.025 in")))
sketch3.addConstraint(Sketcher.Constraint("DistanceX", 0, 2, 0, 1, 0.531202))
sketch3.addConstraint(Sketcher.Constraint("DistanceY", 25, 2, 25, 1, 0.236599))
sketch3.addConstraint(Sketcher.Constraint("DistanceY", 20, 2, -1, 1, Q("0.7625 in")))
sketch3.addConstraint(Sketcher.Constraint("DistanceY", 38, 2, -1, 1, Q("0.7625 in")))
sketch3.addConstraint(Sketcher.Constraint("Distance", 22, 2.188401))
sketch3.addConstraint(Sketcher.Constraint("DistanceX", 4, 1, 4, 2, 0.154679))
sketch3.addConstraint(Sketcher.Constraint("DistanceX", 6, 1, 6, 2, 0.506779))
sketch3.addConstraint(Sketcher.Constraint("DistanceY", 3, 2, 3, 1, 1.107179))
sketch3.addConstraint(Sketcher.Constraint("DistanceX", -1, 1, 39, 2, 59.475399))
sketch3.addConstraint(Sketcher.Constraint("DistanceX", 11, 2, 21, 2, 3.3597))
sketch3.addConstraint(Sketcher.Constraint("DistanceX", 22, 2, 24, 2, 1.523898))
sketch3.addConstraint(Sketcher.Constraint("DistanceY", 26, 2, 24, 2, 0.236599))
sketch3.addConstraint(Sketcher.Constraint("DistanceY", 41, 2, 28, 2, 0.715901))
sketch3.addConstraint(Sketcher.Constraint("Distance", 7, 1.298861))
sketch3.addConstraint(Sketcher.Constraint("Distance", 24, 2.620162))
sketch3.addConstraint(Sketcher.Constraint("Distance", 38, 0.490461))
sketch3.addConstraint(Sketcher.Constraint("DistanceX", 19, 2, 19, 1, 1.628205))
sketch3.addConstraint(Sketcher.Constraint("DistanceX", 21, 1, 21, 2, 1.040016))
sketch3.addConstraint(Sketcher.Constraint("DistanceX", 26, 2, 26, 1, 1.156534))
sketch3.addConstraint(Sketcher.Constraint("DistanceX", 41, 1, 41, 2, 0.260513))
sketch3.addConstraint(Sketcher.Constraint("DistanceX", 43, 2, 43, 1, 0.455897))
sketch3.addConstraint(Sketcher.Constraint("DistanceX", 45, 1, 45, 2, 0.260513))
sketch3.addConstraint(Sketcher.Constraint("DistanceX", 47, 2, 47, 1, 0.455897))
sketch3.addConstraint(Sketcher.Constraint("DistanceY", 20, 1, 20, 2, 0.423333))
sketch3.addConstraint(Sketcher.Constraint("DistanceX", -1, 1, 27, 2, 58.020191))
sketch3.addConstraint(Sketcher.Constraint("DistanceY", 27, 2, -1, 1, 18.381418))
sketch3.addConstraint(Sketcher.Constraint("DistanceX", -1, 1, 41, 2, 60.843091))
sketch3.addConstraint(Sketcher.Constraint("DistanceY", 42, 2, -1, 1, 19.855962))
sketch3.addConstraint(Sketcher.Constraint("DistanceX", -1, 1, 45, 2, 60.126681))
sketch3.addConstraint(Sketcher.Constraint("DistanceY", 46, 2, -1, 1, 19.855962))
sketch3.addConstraint(Sketcher.Constraint("DistanceX", 22, 2, 23, 2, 0.40349))
sketch3.addConstraint(Sketcher.Constraint("DistanceX", 38, 2, 42, 2, 2.260661))
sketch3.addConstraint(Sketcher.Constraint("DistanceY", 40, 2, 45, 2, 0.781538))
sketch3.addConstraint(Sketcher.Constraint("DistanceX", 46, 2, 42, 2, 0.71641))
pocket2 = doc.addObject("PartDesign::Pocket", "Pocket001")
body.addObject(pocket2)
pocket2.Profile = sketch3
pocket2.Length = Q("0.03125 in")
pocket2.Reversed = True
doc.recompute()

fillet2 = doc.addObject("PartDesign::Fillet", "Fillet001")
body.addObject(fillet2)
fillet2.Base = (pocket2, edges_at(pocket2, [(65.272, -0.794, -26.988), (48.338, 0.794, -10.054)]))
fillet2.Radius = Q("0.05 in")

doc.recompute()
